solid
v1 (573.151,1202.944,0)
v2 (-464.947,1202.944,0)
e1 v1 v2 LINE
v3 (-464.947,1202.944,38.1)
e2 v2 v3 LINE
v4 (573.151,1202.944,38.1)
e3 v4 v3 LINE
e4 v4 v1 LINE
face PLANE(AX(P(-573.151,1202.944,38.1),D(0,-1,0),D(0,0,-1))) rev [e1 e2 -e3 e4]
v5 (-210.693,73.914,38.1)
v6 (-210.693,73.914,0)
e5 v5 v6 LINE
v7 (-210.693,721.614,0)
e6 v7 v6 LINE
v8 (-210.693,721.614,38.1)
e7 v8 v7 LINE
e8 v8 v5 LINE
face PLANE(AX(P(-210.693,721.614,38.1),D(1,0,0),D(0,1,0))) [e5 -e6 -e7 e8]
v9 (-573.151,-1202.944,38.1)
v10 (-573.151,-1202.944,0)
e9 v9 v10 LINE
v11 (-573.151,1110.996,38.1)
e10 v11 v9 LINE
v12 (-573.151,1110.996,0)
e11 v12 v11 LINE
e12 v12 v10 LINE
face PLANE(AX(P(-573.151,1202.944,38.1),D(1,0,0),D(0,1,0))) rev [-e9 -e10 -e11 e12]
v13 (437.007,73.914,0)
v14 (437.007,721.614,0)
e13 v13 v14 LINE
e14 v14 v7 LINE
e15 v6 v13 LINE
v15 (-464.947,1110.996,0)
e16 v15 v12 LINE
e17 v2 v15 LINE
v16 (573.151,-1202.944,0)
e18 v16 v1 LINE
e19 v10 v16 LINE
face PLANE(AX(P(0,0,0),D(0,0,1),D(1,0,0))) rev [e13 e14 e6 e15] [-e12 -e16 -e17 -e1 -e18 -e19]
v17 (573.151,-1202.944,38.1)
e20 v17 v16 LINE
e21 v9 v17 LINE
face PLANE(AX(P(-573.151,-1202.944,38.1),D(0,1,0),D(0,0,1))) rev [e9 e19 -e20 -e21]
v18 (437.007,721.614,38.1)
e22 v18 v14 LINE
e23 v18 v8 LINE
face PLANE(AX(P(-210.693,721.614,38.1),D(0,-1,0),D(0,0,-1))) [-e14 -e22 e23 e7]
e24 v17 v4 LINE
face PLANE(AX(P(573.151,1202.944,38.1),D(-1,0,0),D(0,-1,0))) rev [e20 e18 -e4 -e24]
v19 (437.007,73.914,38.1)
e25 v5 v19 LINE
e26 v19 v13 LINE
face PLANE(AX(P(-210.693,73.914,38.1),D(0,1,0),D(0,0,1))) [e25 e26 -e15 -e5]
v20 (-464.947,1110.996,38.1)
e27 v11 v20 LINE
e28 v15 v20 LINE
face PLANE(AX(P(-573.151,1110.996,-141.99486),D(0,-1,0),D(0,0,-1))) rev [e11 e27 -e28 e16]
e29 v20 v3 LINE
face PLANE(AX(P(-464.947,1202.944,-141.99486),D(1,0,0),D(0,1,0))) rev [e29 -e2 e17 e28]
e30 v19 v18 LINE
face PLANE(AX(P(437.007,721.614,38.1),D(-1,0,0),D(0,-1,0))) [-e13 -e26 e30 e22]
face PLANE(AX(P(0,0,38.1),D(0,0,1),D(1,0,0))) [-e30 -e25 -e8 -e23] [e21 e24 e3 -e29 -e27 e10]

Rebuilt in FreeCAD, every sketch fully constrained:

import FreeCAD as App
import Part
import Sketcher
from FreeCAD import Vector
Q = App.Units.Quantity


def add_polygon(sketch, points):
    """Adds a closed chain of lines whose ends are joined by coincident constraints."""
    first, n = sketch.GeometryCount, len(points)
    for a, b in zip(points, points[1:] + points[:1]):
        sketch.addGeometry(Part.LineSegment(App.Vector(*a, 0), App.Vector(*b, 0)), False)
    for i in range(n):
        sketch.addConstraint(Sketcher.Constraint("Coincident", first + i, 2, first + (i + 1) % n, 1))

doc = App.newDocument("Part")
params = doc.addObject("Spreadsheet::Sheet", "Params")
for row, (alias, value) in enumerate([
    ("sketch1_width", "25.5 in"),
    ("sketch1_width2", "45.13 in"),
    ("sketch1_height", "94.72 in"),
    ("pad1_length", "1.5 in"),
    ("sketch2_width", "4.26 in"),
    ("sketch2_height", "3.62 in"),
    ("pocket1_length", "1.5 in"),
], start=1):
    params.set(f"A{row}", alias)
    params.set(f"B{row}", "=" + value)
    params.setAlias(f"B{row}", alias)

body = doc.addObject("PartDesign::Body", "Body")

# Sketch on XY plane
sketch1 = body.newObject("Sketcher::SketchObject", "Sketch")
sketch1.AttachmentSupport = (doc.getObject("XY_Plane"), [""])
sketch1.MapMode = "FlatFace"
add_polygon(sketch1, [(-573, 1203), (-573, -1203), (573, -1203), (573, 1203)])  # lines 0-3
add_polygon(sketch1, [(437, 74), (-211, 74), (-211, 722), (437, 722)])  # lines 4-7
sketch1.addConstraint([
    Sketcher.Constraint("Vertical", 0),
    Sketcher.Constraint("Horizontal", 1),
    Sketcher.Constraint("Vertical", 2),
    Sketcher.Constraint("Horizontal", 3),
    Sketcher.Constraint("Horizontal", 4),
    Sketcher.Constraint("Vertical", 5),
    Sketcher.Constraint("Horizontal", 6),
    Sketcher.Constraint("Vertical", 7),
    Sketcher.Constraint("Symmetric", 0, 2, 2, 2, -1, 1),
    Sketcher.Constraint("Equal", 6, 5),
    Sketcher.Constraint("DistanceX", 4, 2, 4, 1, Q("25.5 in")),
    Sketcher.Constraint("DistanceX", 1, 1, 1, 2, Q("45.13 in")),
    Sketcher.Constraint("DistanceY", 0, 2, 0, 1, Q("94.72 in")),
    Sketcher.Constraint("DistanceY", -1, 1, 4, 2, Q("2.91 in")),
    Sketcher.Constraint("DistanceX", 3, 2, 4, 2, Q("14.27 in")),
])
sketch1.setExpression("Constraints[18]", "Params.sketch1_width")
sketch1.setExpression("Constraints[19]", "Params.sketch1_width2")
sketch1.setExpression("Constraints[20]", "Params.sketch1_height")
pad1 = body.newObject("PartDesign::Pad", "Pad")
pad1.Profile = sketch1
pad1.setExpression("Length", "Params.pad1_length")

# Sketch on XY plane
sketch2 = body.newObject("Sketcher::SketchObject", "Sketch001")
sketch2.AttachmentSupport = (doc.getObject("XY_Plane"), [""])
sketch2.MapMode = "FlatFace"
sketch2.AttachmentOffset = App.Placement(Vector(0, 0, 1.5 * 25.4), App.Rotation())
add_polygon(sketch2, [(-573, 1203), (-573, 1111), (-465, 1111), (-465, 1203)])  # lines 0-3
sketch2.addConstraint([
    Sketcher.Constraint("Vertical", 0),
    Sketcher.Constraint("Horizontal", 1),
    Sketcher.Constraint("Vertical", 2),
    Sketcher.Constraint("Horizontal", 3),
    Sketcher.Constraint("DistanceX", 1, 1, 1, 2, Q("4.26 in")),
    Sketcher.Constraint("DistanceY", 0, 2, 0, 1, Q("3.62 in")),
    Sketcher.Constraint("DistanceY", -1, 1, 0, 2, Q("43.74 in")),
    Sketcher.Constraint("DistanceX", 0, 2, -1, 1, Q("22.565 in")),
])
sketch2.setExpression("Constraints[8]", "Params.sketch2_width")
sketch2.setExpression("Constraints[9]", "Params.sketch2_height")
pocket1 = body.newObject("PartDesign::Pocket", "Pocket")
pocket1.Profile = sketch2
pocket1.setExpression("Length", "Params.pocket1_length")

doc.recompute()
